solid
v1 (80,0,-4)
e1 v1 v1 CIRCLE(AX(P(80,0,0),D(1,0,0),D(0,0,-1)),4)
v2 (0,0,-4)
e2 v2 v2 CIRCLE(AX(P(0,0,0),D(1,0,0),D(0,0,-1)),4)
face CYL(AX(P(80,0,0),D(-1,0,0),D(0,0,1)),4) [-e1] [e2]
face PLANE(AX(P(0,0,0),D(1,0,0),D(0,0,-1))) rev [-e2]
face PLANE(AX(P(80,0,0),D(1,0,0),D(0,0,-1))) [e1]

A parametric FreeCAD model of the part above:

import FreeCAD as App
import Part
import Sketcher
Q = App.Units.Quantity

doc = App.newDocument("Part")
body = doc.addObject("PartDesign::Body", "Body")

# Sketch on YZ plane
sketch1 = doc.addObject("Sketcher::SketchObject", "Sketch")
body.addObject(sketch1)
sketch1.AttachmentSupport = (doc.YZ_Plane, [""])
sketch1.MapMode = "FlatFace"
sketch1.addGeometry(Part.Circle(App.Vector(0, 0, 0), App.Vector(0, 0, 1), 4), False)
sketch1.addConstraint([
    Sketcher.Constraint("Coincident", 0, 3, -1, 1),
    Sketcher.Constraint("Diameter", 0, Q("8 mm")),
])
pad1 = doc.addObject("PartDesign::Pad", "Pad")
body.addObject(pad1)
pad1.Profile = sketch1
pad1.Length = 80

doc.recompute()
